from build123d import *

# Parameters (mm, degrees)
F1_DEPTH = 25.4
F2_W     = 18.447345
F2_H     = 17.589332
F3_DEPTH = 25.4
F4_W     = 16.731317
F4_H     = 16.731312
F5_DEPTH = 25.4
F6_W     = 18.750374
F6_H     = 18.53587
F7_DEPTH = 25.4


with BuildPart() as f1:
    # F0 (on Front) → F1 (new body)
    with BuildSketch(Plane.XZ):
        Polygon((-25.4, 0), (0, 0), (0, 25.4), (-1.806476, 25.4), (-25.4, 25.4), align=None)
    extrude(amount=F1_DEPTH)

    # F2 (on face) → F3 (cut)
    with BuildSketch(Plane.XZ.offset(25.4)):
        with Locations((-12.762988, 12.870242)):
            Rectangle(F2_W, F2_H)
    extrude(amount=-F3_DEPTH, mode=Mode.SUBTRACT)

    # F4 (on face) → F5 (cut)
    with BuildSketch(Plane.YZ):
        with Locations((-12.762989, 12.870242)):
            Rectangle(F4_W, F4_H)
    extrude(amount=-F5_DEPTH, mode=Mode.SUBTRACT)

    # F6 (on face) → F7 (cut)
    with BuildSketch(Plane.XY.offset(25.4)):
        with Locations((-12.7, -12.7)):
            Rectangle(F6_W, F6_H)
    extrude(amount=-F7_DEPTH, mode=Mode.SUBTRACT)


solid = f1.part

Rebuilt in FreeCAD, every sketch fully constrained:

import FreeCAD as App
import Part
import Sketcher

V = App.Vector
Q = App.Units.Quantity

doc = App.newDocument("Part")
body = doc.addObject("PartDesign::Body", "Body")

# Sketch on XZ plane
sketch1 = body.newObject("Sketcher::SketchObject", "Sketch")
sketch1.AttachmentSupport = (doc.getObject("XZ_Plane"), [""])
sketch1.MapMode = "FlatFace"
sketch1.addGeometry([
    Part.LineSegment(V(-25, 0, 0), V(0, 0, 0)),
    Part.LineSegment(V(0, 0, 0), V(0, 25, 0)),
    Part.LineSegment(V(0, 25, 0), V(-25, 25, 0)),
    Part.LineSegment(V(-25, 25, 0), V(-25, 0, 0)),
], False)
sketch1.addConstraint([
    Sketcher.Constraint("Coincident", 0, 2, 1, 1),
    Sketcher.Constraint("Coincident", 1, 2, 2, 1),
    Sketcher.Constraint("Coincident", 2, 2, 3, 1),
    Sketcher.Constraint("Coincident", 3, 2, 0, 1),
    Sketcher.Constraint("Horizontal", 0),
    Sketcher.Constraint("Vertical", 1),
    Sketcher.Constraint("Horizontal", 2),
    Sketcher.Constraint("Vertical", 3),
    Sketcher.Constraint("Coincident", 0, 2, -1, 1),
    Sketcher.Constraint("Equal", 2, 1),
    Sketcher.Constraint("DistanceX", 0, 1, 0, 2, Q("1 in")),
])
pad1 = body.newObject("PartDesign::Pad", "Pad")
pad1.Profile = sketch1
pad1.Length = Q("1 in")

# Sketch on XZ plane
sketch2 = body.newObject("Sketcher::SketchObject", "Sketch001")
sketch2.AttachmentSupport = (doc.getObject("XZ_Plane"), [""])
sketch2.MapMode = "FlatFace"
sketch2.AttachmentOffset = App.Placement(V(0, 0, 1 * 25.4), App.Rotation())
sketch2.addGeometry([
    Part.LineSegment(V(-22, 22, 0), V(-22, 4, 0)),
    Part.LineSegment(V(-22, 4, 0), V(-4, 4, 0)),
    Part.LineSegment(V(-4, 4, 0), V(-4, 22, 0)),
    Part.LineSegment(V(-4, 22, 0), V(-22, 22, 0)),
], False)
sketch2.addConstraint([
    Sketcher.Constraint("Coincident", 0, 2, 1, 1),
    Sketcher.Constraint("Coincident", 1, 2, 2, 1),
    Sketcher.Constraint("Coincident", 2, 2, 3, 1),
    Sketcher.Constraint("Coincident", 3, 2, 0, 1),
    Sketcher.Constraint("Vertical", 0),
    Sketcher.Constraint("Horizontal", 1),
    Sketcher.Constraint("Vertical", 2),
    Sketcher.Constraint("Horizontal", 3),
    Sketcher.Constraint("DistanceY", 0, 2, 0, 1, 17.589332),
    Sketcher.Constraint("DistanceX", 1, 1, 1, 2, 18.447345),
    Sketcher.Constraint("DistanceX", 0, 2, -1, 1, 21.98666),
    Sketcher.Constraint("DistanceY", -1, 1, 2, 2, 21.664908),
])
pocket1 = body.newObject("PartDesign::Pocket", "Pocket")
pocket1.Profile = sketch2
pocket1.Length = Q("1 in")

# Sketch on YZ plane
sketch3 = body.newObject("Sketcher::SketchObject", "Sketch002")
sketch3.AttachmentSupport = (doc.getObject("YZ_Plane"), [""])
sketch3.MapMode = "FlatFace"
sketch3.addGeometry([
    Part.LineSegment(V(-21, 21, 0), V(-21, 5, 0)),
    Part.LineSegment(V(-21, 5, 0), V(-4, 5, 0)),
    Part.LineSegment(V(-4, 5, 0), V(-4, 21, 0)),
    Part.LineSegment(V(-4, 21, 0), V(-21, 21, 0)),
], False)
sketch3.addConstraint([
    Sketcher.Constraint("Coincident", 0, 2, 1, 1),
    Sketcher.Constraint("Coincident", 1, 2, 2, 1),
    Sketcher.Constraint("Coincident", 2, 2, 3, 1),
    Sketcher.Constraint("Coincident", 3, 2, 0, 1),
    Sketcher.Constraint("Vertical", 0),
    Sketcher.Constraint("Horizontal", 1),
    Sketcher.Constraint("Vertical", 2),
    Sketcher.Constraint("Horizontal", 3),
    Sketcher.Constraint("DistanceY", 0, 2, 0, 1, 16.731312),
    Sketcher.Constraint("DistanceX", 1, 1, 1, 2, 16.731317),
    Sketcher.Constraint("DistanceX", 1, 2, -1, 1, 4.39733),
    Sketcher.Constraint("DistanceY", -1, 1, 0, 2, 4.504586),
])
pocket2 = body.newObject("PartDesign::Pocket", "Pocket001")
pocket2.Profile = sketch3
pocket2.Length = Q("1 in")

# Sketch on XY plane
sketch4 = body.newObject("Sketcher::SketchObject", "Sketch003")
sketch4.AttachmentSupport = (doc.getObject("XY_Plane"), [""])
sketch4.MapMode = "FlatFace"
sketch4.AttachmentOffset = App.Placement(V(0, 0, 1 * 25.4), App.Rotation())
sketch4.addGeometry([
    Part.LineSegment(V(-22, -3, 0), V(-22, -22, 0)),
    Part.LineSegment(V(-22, -22, 0), V(-3, -22, 0)),
    Part.LineSegment(V(-3, -22, 0), V(-3, -3, 0)),
    Part.LineSegment(V(-3, -3, 0), V(-22, -3, 0)),
], False)
sketch4.addConstraint([
    Sketcher.Constraint("Coincident", 0, 2, 1, 1),
    Sketcher.Constraint("Coincident", 1, 2, 2, 1),
    Sketcher.Constraint("Coincident", 2, 2, 3, 1),
    Sketcher.Constraint("Coincident", 3, 2, 0, 1),
    Sketcher.Constraint("Vertical", 0),
    Sketcher.Constraint("Horizontal", 1),
    Sketcher.Constraint("Vertical", 2),
    Sketcher.Constraint("Horizontal", 3),
    Sketcher.Constraint("DistanceY", 0, 2, 0, 1, 18.53587),
    Sketcher.Constraint("DistanceX", 1, 1, 1, 2, 18.750374),
    Sketcher.Constraint("DistanceX", 0, 2, -1, 1, 22.075187),
    Sketcher.Constraint("DistanceY", 0, 2, -1, 1, 21.967935),
])
pocket3 = body.newObject("PartDesign::Pocket", "Pocket002")
pocket3.Profile = sketch4
pocket3.Length = Q("1 in")

doc.recompute()
